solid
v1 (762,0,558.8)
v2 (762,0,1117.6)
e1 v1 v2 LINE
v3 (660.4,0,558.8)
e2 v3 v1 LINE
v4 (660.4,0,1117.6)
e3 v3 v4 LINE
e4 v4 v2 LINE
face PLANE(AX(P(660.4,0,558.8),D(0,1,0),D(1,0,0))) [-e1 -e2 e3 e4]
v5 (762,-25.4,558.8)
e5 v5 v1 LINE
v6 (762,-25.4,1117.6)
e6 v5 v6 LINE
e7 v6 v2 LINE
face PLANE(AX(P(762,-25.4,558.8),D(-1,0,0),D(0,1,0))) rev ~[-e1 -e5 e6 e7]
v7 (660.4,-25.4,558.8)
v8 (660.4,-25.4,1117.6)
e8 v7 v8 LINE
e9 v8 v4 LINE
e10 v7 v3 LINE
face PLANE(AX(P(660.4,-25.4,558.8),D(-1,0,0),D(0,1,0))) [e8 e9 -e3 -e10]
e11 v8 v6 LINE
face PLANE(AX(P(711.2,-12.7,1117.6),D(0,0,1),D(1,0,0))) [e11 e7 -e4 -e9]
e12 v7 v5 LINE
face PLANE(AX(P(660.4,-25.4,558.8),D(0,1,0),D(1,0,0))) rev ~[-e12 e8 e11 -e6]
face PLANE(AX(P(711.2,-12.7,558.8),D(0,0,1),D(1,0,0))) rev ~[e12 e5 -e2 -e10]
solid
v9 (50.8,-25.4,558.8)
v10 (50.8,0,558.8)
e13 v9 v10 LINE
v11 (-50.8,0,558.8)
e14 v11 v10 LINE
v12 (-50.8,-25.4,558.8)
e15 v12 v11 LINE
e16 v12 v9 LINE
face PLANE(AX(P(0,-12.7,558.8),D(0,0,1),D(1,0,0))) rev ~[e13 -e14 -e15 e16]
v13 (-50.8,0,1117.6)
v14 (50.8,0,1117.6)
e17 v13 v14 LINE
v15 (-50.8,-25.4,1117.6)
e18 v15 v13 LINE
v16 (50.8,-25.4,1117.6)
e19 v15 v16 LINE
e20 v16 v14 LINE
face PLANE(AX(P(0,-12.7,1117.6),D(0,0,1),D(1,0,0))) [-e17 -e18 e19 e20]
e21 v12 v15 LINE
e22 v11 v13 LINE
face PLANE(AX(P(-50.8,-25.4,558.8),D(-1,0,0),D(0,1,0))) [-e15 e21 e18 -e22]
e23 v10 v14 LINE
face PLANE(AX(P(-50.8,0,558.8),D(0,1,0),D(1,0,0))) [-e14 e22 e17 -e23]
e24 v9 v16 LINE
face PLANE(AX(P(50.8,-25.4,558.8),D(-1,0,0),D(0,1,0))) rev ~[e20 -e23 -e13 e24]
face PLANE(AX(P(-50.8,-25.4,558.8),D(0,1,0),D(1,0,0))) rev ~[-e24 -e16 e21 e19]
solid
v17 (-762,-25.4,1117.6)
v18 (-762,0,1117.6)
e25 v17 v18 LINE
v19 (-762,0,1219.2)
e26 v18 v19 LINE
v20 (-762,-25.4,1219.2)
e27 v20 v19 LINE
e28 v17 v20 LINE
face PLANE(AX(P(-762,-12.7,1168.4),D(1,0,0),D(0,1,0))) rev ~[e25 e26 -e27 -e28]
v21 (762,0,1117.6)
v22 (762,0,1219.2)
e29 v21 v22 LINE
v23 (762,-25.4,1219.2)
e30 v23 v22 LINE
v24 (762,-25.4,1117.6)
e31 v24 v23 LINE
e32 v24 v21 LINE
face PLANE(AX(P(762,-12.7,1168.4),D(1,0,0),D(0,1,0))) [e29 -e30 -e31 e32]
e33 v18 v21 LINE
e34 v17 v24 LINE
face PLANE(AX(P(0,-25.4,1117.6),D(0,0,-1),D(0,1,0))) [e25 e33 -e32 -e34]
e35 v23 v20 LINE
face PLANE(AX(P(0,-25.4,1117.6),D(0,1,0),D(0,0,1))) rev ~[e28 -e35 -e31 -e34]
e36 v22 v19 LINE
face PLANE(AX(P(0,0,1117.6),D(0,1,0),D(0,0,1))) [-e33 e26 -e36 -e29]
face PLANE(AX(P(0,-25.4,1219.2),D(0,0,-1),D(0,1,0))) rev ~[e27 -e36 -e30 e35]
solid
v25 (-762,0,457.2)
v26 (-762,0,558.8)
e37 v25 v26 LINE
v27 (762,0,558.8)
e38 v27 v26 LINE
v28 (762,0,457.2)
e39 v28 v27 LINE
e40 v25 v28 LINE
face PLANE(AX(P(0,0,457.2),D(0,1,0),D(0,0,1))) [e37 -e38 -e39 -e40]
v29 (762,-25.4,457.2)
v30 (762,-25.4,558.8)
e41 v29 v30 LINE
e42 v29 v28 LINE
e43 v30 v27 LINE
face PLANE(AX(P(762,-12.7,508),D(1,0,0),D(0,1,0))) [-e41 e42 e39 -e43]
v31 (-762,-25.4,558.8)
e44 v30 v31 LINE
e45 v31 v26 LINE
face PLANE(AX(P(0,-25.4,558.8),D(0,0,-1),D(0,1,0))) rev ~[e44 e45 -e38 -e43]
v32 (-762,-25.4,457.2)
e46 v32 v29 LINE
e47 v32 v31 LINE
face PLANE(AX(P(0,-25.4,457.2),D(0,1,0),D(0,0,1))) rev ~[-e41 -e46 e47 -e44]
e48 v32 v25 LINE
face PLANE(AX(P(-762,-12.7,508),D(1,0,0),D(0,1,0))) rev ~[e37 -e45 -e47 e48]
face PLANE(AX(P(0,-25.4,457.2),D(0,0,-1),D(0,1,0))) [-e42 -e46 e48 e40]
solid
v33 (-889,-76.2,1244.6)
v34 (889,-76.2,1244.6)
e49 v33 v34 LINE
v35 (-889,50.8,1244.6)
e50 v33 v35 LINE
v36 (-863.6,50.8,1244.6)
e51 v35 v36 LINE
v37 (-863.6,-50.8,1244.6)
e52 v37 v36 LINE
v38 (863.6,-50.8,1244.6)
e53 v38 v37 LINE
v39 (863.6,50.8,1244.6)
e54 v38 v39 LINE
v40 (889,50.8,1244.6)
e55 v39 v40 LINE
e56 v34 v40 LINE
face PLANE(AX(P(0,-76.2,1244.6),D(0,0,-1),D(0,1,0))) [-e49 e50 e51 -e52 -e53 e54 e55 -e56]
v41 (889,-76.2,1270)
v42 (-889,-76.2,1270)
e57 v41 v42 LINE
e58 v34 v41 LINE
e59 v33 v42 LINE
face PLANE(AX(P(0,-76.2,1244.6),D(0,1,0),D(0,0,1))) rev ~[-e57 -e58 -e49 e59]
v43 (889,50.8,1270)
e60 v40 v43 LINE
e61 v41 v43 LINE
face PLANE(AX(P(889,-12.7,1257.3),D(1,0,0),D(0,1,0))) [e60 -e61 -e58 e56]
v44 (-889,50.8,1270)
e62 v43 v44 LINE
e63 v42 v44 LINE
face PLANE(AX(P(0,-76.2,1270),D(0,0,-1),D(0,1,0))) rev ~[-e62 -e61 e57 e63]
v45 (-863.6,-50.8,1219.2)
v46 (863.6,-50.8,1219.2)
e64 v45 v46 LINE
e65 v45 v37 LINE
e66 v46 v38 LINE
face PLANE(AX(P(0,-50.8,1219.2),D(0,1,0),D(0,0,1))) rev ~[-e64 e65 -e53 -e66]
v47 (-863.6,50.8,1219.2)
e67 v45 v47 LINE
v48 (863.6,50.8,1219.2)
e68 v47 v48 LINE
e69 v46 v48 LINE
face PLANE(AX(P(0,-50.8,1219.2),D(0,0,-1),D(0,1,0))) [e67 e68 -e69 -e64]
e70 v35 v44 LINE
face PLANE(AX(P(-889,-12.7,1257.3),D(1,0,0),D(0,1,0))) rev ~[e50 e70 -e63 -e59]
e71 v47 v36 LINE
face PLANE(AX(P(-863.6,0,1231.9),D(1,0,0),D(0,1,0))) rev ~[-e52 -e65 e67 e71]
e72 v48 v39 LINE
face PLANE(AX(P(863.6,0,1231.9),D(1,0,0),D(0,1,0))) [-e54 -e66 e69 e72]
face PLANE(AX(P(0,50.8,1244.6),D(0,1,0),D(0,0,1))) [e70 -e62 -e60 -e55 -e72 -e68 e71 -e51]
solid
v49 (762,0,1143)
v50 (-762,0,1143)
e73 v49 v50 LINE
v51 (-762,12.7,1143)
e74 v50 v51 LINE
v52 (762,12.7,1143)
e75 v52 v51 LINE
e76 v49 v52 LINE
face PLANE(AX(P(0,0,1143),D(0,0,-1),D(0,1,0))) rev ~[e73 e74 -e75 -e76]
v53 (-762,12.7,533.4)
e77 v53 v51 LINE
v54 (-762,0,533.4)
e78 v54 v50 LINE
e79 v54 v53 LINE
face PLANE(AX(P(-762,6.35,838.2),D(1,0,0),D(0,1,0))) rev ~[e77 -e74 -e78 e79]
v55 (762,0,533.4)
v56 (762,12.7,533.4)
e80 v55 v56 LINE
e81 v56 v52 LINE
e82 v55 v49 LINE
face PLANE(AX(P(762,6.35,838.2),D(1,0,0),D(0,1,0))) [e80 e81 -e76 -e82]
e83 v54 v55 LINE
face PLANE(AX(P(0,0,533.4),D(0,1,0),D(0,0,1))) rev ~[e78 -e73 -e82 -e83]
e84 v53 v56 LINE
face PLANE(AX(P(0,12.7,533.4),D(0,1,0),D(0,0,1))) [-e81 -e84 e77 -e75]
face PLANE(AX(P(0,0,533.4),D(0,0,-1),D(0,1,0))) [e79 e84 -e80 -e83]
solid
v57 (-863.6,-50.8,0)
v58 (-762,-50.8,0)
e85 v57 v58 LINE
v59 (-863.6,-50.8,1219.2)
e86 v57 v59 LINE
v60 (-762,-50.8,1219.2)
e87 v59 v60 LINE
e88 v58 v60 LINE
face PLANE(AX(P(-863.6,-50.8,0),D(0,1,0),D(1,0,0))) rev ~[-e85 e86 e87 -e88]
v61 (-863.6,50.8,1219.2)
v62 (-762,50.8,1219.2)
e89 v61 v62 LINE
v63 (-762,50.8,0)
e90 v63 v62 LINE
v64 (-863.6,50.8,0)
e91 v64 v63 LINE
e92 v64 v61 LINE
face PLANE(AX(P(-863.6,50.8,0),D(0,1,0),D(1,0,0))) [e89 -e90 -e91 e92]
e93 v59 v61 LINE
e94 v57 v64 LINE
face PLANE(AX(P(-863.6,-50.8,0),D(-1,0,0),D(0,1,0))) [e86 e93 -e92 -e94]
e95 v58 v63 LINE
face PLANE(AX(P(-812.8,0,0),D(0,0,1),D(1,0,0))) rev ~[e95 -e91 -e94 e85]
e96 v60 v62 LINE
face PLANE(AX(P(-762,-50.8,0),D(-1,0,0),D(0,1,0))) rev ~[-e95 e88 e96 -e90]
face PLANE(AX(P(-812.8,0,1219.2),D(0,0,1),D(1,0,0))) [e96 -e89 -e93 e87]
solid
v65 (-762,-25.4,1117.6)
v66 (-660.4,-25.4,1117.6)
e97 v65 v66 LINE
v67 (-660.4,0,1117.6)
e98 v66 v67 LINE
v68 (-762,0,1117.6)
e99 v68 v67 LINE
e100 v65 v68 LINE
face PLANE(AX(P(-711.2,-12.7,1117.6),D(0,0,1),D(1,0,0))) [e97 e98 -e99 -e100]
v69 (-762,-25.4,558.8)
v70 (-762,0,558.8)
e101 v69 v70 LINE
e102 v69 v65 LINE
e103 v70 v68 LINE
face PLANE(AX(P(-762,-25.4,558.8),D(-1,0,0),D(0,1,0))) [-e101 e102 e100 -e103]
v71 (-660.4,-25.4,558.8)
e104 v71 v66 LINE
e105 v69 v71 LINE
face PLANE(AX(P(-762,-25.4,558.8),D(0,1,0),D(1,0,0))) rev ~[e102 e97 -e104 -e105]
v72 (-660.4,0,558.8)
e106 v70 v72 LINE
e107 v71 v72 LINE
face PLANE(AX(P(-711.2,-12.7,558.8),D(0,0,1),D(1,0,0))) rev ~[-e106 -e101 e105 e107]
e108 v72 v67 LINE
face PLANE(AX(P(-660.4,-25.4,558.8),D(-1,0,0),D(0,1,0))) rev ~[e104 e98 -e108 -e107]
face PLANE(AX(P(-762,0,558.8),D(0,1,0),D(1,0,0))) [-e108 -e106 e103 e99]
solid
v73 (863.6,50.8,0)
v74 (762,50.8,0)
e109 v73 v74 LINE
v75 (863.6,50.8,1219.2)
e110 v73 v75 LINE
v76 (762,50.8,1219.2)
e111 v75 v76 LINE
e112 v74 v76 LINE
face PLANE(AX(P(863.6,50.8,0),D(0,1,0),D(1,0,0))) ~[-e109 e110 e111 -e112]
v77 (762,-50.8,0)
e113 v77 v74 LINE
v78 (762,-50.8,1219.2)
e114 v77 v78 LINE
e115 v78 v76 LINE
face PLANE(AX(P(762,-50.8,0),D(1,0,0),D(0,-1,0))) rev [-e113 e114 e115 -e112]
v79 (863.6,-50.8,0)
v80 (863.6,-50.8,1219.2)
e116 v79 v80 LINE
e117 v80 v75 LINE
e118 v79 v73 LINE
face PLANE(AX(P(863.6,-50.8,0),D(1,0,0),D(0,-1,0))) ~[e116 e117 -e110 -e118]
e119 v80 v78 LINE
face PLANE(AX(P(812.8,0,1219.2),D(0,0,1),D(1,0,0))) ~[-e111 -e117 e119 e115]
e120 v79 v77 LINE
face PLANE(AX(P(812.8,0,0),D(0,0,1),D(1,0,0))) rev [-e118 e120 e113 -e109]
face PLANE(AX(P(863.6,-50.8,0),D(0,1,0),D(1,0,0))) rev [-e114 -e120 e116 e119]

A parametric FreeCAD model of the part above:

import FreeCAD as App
import Part
import Sketcher
Q = App.Units.Quantity


def add_polygon(sketch, points):
    """Adds a closed chain of lines whose ends are joined by coincident constraints."""
    first, n = sketch.GeometryCount, len(points)
    for a, b in zip(points, points[1:] + points[:1]):
        sketch.addGeometry(Part.LineSegment(App.Vector(*a, 0), App.Vector(*b, 0)), False)
    for i in range(n):
        sketch.addConstraint(Sketcher.Constraint("Coincident", first + i, 2, first + (i + 1) % n, 1))

doc = App.newDocument("Part")
body = doc.addObject("PartDesign::Body", "Body")

sketch1 = body.newObject("Sketcher::SketchObject", "Sketch")
sketch1.AttachmentSupport = (doc.getObject("XY_Plane"), [""])
sketch1.MapMode = "FlatFace"
add_polygon(sketch1, [(-863.6, 50.8), (-863.6, -50.8), (-762, -50.8), (-762, 50.8)])
sketch1.addConstraint([
    Sketcher.Constraint("Vertical", 0),
    Sketcher.Constraint("Horizontal", 1),
    Sketcher.Constraint("Vertical", 2),
    Sketcher.Constraint("Horizontal", 3),
    Sketcher.Constraint("Equal", 3, 0),
    Sketcher.Constraint("DistanceX", 1, 1, 1, 2, Q("4 in")),
    Sketcher.Constraint("DistanceX", 0, 2, -1, 1, Q("34 in")),
    Sketcher.Constraint("DistanceY", 0, 2, -1, 1, Q("2 in")),
])
pad1 = body.newObject("PartDesign::Pad", "Pad")
pad1.Profile = sketch1
pad1.Length = Q("48 in")
body2 = doc.addObject("PartDesign::Body", "Body001")
doc.recompute()

mirroring = doc.addObject("Part::Mirroring", "Mirroring")
mirroring.Source = body
mirroring.Base = App.Vector(0, 0, 0)
mirroring.Normal = App.Vector(1, 0, 0)
body2.BaseFeature = mirroring
doc.recompute()
body3 = doc.addObject("PartDesign::Body", "Body002")

sketch2 = body3.newObject("Sketcher::SketchObject", "Sketch001")
sketch2.AttachmentSupport = (doc.getObject("YZ_Plane002"), [""])
sketch2.MapMode = "FlatFace"
add_polygon(sketch2, [(-25.4, 1219.2), (-25.4, 1117.6), (0, 1117.6), (0, 1219.2)])
sketch2.addConstraint([
    Sketcher.Constraint("Vertical", 0),
    Sketcher.Constraint("Horizontal", 1),
    Sketcher.Constraint("Vertical", 2),
    Sketcher.Constraint("Horizontal", 3),
    Sketcher.Constraint("PointOnObject", 1, 2, -2),
    Sketcher.Constraint("DistanceX", 1, 1, 1, 2, Q("1 in")),
    Sketcher.Constraint("DistanceY", 0, 2, 0, 1, Q("4 in")),
    Sketcher.Constraint("DistanceY", -1, 1, 0, 2, Q("44 in")),
])
pad2 = body3.newObject("PartDesign::Pad", "Pad001")
pad2.Profile = sketch2
pad2.Length = Q("60 in")
pad2.Midplane = True
body4 = doc.addObject("PartDesign::Body", "Body003")

sketch3 = body4.newObject("Sketcher::SketchObject", "Sketch002")
sketch3.AttachmentSupport = (doc.getObject("YZ_Plane003"), [""])
sketch3.MapMode = "FlatFace"
add_polygon(sketch3, [(-25.4, 558.8), (-25.4, 457.2), (0, 457.2), (0, 558.8)])
sketch3.addConstraint([
    Sketcher.Constraint("Vertical", 0),
    Sketcher.Constraint("Horizontal", 1),
    Sketcher.Constraint("Vertical", 2),
    Sketcher.Constraint("Horizontal", 3),
    Sketcher.Constraint("PointOnObject", 1, 2, -2),
    Sketcher.Constraint("DistanceX", 1, 1, 1, 2, Q("1 in")),
    Sketcher.Constraint("DistanceY", 0, 2, 0, 1, Q("4 in")),
    Sketcher.Constraint("DistanceY", -1, 1, 0, 2, Q("18 in")),
])
pad3 = body4.newObject("PartDesign::Pad", "Pad002")
pad3.Profile = sketch3
pad3.Length = Q("60 in")
pad3.Midplane = True
body5 = doc.addObject("PartDesign::Body", "Body004")

sketch4 = body5.newObject("Sketcher::SketchObject", "Sketch003")
sketch4.AttachmentSupport = (doc.getObject("YZ_Plane004"), [""])
sketch4.MapMode = "FlatFace"
add_polygon(sketch4, [(0, 1143), (0, 533.4), (12.7, 533.4), (12.7, 1143)])
sketch4.addConstraint([
    Sketcher.Constraint("Vertical", 0),
    Sketcher.Constraint("Horizontal", 1),
    Sketcher.Constraint("Vertical", 2),
    Sketcher.Constraint("Horizontal", 3),
    Sketcher.Constraint("PointOnObject", 0, 2, -2),
    Sketcher.Constraint("DistanceY", 0, 2, 0, 1, Q("24 in")),
    Sketcher.Constraint("DistanceX", 1, 1, 1, 2, Q("0.5 in")),
    Sketcher.Constraint("DistanceY", -1, 1, 0, 2, Q("21 in")),
])
pad4 = body5.newObject("PartDesign::Pad", "Pad003")
pad4.Profile = sketch4
pad4.Length = Q("60 in")
pad4.Midplane = True
body6 = doc.addObject("PartDesign::Body", "Body005")
body6.AllowCompound = True

sketch5 = body6.newObject("Sketcher::SketchObject", "Sketch004")
sketch5.AttachmentSupport = (doc.getObject("XY_Plane005"), [""])
sketch5.MapMode = "FlatFace"
sketch5.AttachmentOffset = App.Placement(App.Vector(0, 0, 22 * 25.4), App.Rotation())
add_polygon(sketch5, [(-762, 0), (-762, -25.4), (-660.4, -25.4), (-660.4, 0)])
add_polygon(sketch5, [(660.4, 0), (660.4, -25.4), (762, -25.4), (762, 0)])
add_polygon(sketch5, [(-50.8, 0), (-50.8, -25.4), (50.8, -25.4), (50.8, 0)])
sketch5.addConstraint([
    Sketcher.Constraint("Vertical", 0),
    Sketcher.Constraint("Horizontal", 1),
    Sketcher.Constraint("Vertical", 2),
    Sketcher.Constraint("Horizontal", 3),
    Sketcher.Constraint("Vertical", 4),
    Sketcher.Constraint("Horizontal", 5),
    Sketcher.Constraint("Vertical", 6),
    Sketcher.Constraint("Horizontal", 7),
    Sketcher.Constraint("Vertical", 8),
    Sketcher.Constraint("Horizontal", 9),
    Sketcher.Constraint("Vertical", 10),
    Sketcher.Constraint("Horizontal", 11),
    Sketcher.Constraint("Symmetric", 3, 2, 6, 2, -1, 1),
    Sketcher.Constraint("Symmetric", 10, 2, 11, 2, -1, 1),
    Sketcher.Constraint("Symmetric", 1, 2, 4, 2, -2),
    Sketcher.Constraint("PointOnObject", 2, 2, -1),
    Sketcher.Constraint("Horizontal", 5, 2, 8, 2),
    Sketcher.Constraint("Equal", 7, 9),
    Sketcher.Constraint("DistanceX", 1, 1, 1, 2, Q("4 in")),
    Sketcher.Constraint("DistanceY", 0, 2, 0, 1, Q("1 in")),
    Sketcher.Constraint("DistanceX", 0, 2, -1, 1, Q("30 in")),
])
pad5 = body6.newObject("PartDesign::Pad", "Pad004")
pad5.Profile = sketch5
pad5.Length = Q("22 in")
body7 = doc.addObject("PartDesign::Body", "Body006")

sketch6 = body7.newObject("Sketcher::SketchObject", "Sketch005")
sketch6.AttachmentSupport = (doc.getObject("YZ_Plane006"), [""])
sketch6.MapMode = "FlatFace"
add_polygon(sketch6, [(-50.8, 1244.6), (-50.8, 1219.2), (50.8, 1219.2), (50.8, 1244.6)])
sketch6.addConstraint([
    Sketcher.Constraint("Vertical", 0),
    Sketcher.Constraint("Horizontal", 1),
    Sketcher.Constraint("Vertical", 2),
    Sketcher.Constraint("Horizontal", 3),
    Sketcher.Constraint("DistanceX", 1, 1, 1, 2, Q("4 in")),
    Sketcher.Constraint("DistanceY", 0, 2, 0, 1, Q("1 in")),
    Sketcher.Constraint("DistanceX", 0, 2, -1, 1, Q("2 in")),
    Sketcher.Constraint("DistanceY", -1, 1, 0, 2, Q("48 in")),
])
pad6 = body7.newObject("PartDesign::Pad", "Pad005")
pad6.Profile = sketch6
pad6.Length = Q("68 in")
pad6.Midplane = True

sketch7 = body7.newObject("Sketcher::SketchObject", "Sketch006")
sketch7.AttachmentSupport = (doc.getObject("YZ_Plane006"), [""])
sketch7.MapMode = "FlatFace"
add_polygon(sketch7, [(-76.2, 1270), (-76.2, 1244.6), (50.8, 1244.6), (50.8, 1270)])
sketch7.addConstraint([
    Sketcher.Constraint("Vertical", 0),
    Sketcher.Constraint("Horizontal", 1),
    Sketcher.Constraint("Vertical", 2),
    Sketcher.Constraint("Horizontal", 3),
    Sketcher.Constraint("DistanceX", 1, 1, 1, 2, Q("5 in")),
    Sketcher.Constraint("DistanceY", 0, 2, 0, 1, Q("1 in")),
    Sketcher.Constraint("DistanceX", 0, 2, -1, 1, Q("3 in")),
    Sketcher.Constraint("DistanceY", -1, 1, 0, 2, Q("49 in")),
])
pad7 = body7.newObject("PartDesign::Pad", "Pad006")
pad7.Profile = sketch7
pad7.Length = Q("70 in")
pad7.Midplane = True
mirroring.Visibility = False

doc.recompute()
